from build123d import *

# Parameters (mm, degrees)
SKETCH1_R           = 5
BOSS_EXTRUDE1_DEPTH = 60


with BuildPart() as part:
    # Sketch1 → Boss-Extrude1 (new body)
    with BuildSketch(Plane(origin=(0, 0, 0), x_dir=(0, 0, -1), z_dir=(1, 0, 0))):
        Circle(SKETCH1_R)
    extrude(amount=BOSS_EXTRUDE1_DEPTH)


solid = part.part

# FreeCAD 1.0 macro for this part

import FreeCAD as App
import Part
import Sketcher
from FreeCAD import Vector

doc = App.newDocument("Part")
params = doc.addObject("Spreadsheet::Sheet", "Params")
for row, (alias, value) in enumerate([
    ("sketch1_diameter", "10 mm"),
    ("pad1_length", "60 mm"),
], start=1):
    params.set(f"A{row}", alias)
    params.set(f"B{row}", "=" + value)
    params.setAlias(f"B{row}", alias)

body = doc.addObject("PartDesign::Body", "Body")

# Sketch on YZ plane
sketch1 = doc.addObject("Sketcher::SketchObject", "Sketch")
body.addObject(sketch1)
sketch1.AttachmentSupport = (doc.YZ_Plane, [""])
sketch1.MapMode = "FlatFace"
sketch1.addGeometry(Part.Circle(Vector(0, 0, 0), Vector(0, 0, 1), 5), False)
sketch1.addConstraint([
    Sketcher.Constraint("Coincident", 0, 3, -1, 1),
    Sketcher.Constraint("Diameter", 0, 10.0),
])
sketch1.setExpression("Constraints[1]", "Params.sketch1_diameter")
pad1 = doc.addObject("PartDesign::Pad", "Pad")
body.addObject(pad1)
pad1.Profile = sketch1
pad1.setExpression("Length", "Params.pad1_length")

doc.recompute()
